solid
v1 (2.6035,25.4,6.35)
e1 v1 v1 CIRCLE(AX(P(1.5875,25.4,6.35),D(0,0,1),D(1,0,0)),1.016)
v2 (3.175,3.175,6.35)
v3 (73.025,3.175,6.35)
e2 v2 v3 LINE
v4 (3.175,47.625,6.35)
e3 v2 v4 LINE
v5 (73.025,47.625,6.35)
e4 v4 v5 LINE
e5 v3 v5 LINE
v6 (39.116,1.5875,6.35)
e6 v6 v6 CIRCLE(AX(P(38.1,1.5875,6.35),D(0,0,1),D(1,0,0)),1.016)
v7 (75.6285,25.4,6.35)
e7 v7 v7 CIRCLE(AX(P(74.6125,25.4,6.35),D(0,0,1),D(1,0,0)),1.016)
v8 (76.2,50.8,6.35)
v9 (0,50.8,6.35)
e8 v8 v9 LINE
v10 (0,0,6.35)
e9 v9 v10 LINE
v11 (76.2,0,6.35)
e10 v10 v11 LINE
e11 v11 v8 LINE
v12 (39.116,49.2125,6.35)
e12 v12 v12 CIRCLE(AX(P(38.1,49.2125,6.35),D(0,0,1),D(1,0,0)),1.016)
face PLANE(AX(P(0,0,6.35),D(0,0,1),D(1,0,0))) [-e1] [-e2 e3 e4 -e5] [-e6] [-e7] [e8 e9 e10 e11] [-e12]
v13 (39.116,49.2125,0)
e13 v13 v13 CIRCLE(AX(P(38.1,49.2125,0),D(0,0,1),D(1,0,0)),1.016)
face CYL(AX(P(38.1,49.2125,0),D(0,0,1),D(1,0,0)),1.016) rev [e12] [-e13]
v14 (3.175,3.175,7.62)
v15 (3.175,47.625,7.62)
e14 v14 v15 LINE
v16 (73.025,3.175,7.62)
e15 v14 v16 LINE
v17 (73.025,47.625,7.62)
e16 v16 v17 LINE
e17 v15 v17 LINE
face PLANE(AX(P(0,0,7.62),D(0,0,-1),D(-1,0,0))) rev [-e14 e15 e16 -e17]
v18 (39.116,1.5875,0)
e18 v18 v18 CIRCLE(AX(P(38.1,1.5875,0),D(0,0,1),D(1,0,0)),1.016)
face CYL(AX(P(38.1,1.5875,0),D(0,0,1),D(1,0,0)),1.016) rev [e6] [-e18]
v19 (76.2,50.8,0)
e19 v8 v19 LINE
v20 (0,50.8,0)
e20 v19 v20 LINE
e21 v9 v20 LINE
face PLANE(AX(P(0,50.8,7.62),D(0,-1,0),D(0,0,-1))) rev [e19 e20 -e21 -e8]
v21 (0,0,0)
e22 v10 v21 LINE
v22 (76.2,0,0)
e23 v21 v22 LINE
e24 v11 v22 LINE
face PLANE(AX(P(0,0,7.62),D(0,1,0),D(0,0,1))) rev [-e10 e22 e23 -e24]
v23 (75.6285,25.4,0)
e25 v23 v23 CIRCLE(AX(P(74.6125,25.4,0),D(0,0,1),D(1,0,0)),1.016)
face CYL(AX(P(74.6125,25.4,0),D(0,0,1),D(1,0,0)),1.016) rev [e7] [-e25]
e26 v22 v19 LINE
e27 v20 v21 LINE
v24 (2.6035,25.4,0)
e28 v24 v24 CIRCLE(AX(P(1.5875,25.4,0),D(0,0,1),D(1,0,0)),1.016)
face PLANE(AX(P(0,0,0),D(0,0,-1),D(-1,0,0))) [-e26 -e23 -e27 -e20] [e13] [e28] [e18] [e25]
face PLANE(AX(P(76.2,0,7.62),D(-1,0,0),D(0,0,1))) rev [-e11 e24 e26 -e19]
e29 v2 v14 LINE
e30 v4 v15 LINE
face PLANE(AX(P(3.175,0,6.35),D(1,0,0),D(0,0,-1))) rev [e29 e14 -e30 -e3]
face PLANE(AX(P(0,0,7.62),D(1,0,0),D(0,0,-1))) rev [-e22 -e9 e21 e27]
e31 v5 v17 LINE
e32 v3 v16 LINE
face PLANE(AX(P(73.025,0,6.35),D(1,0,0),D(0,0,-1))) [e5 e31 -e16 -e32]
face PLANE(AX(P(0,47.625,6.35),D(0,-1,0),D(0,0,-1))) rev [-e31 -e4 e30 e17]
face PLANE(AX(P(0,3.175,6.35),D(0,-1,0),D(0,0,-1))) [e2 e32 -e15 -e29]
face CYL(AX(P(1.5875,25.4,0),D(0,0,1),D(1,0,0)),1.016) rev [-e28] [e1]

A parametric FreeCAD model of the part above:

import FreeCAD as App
import Part
import Sketcher

V = App.Vector
Q = App.Units.Quantity


def add_polygon(sketch, points):
    """Adds a closed chain of lines whose ends are joined by coincident constraints."""
    first, n = sketch.GeometryCount, len(points)
    for a, b in zip(points, points[1:] + points[:1]):
        sketch.addGeometry(Part.LineSegment(App.Vector(*a, 0), App.Vector(*b, 0)), False)
    for i in range(n):
        sketch.addConstraint(Sketcher.Constraint("Coincident", first + i, 2, first + (i + 1) % n, 1))

doc = App.newDocument("Part")
body = doc.addObject("PartDesign::Body", "Body")

sketch1 = body.newObject("Sketcher::SketchObject", "Sketch")
sketch1.AttachmentSupport = (doc.getObject("XY_Plane"), [""])
sketch1.MapMode = "FlatFace"
add_polygon(sketch1, [(0, 51), (0, 0), (76, 0), (76, 51)])
sketch1.addConstraint(Sketcher.Constraint("Vertical", 0))
sketch1.addConstraint(Sketcher.Constraint("Horizontal", 1))
sketch1.addConstraint(Sketcher.Constraint("Vertical", 2))
sketch1.addConstraint(Sketcher.Constraint("Horizontal", 3))
sketch1.addConstraint(Sketcher.Constraint("Coincident", 0, 2, -1, 1))
sketch1.addConstraint(Sketcher.Constraint("DistanceX", 1, 1, 1, 2, Q("3 in")))
sketch1.addConstraint(Sketcher.Constraint("DistanceY", 0, 2, 0, 1, Q("2 in")))
pad1 = body.newObject("PartDesign::Pad", "Pad")
pad1.Profile = sketch1
pad1.Length = Q("0.3 in")

sketch2 = body.newObject("Sketcher::SketchObject", "Sketch001")
sketch2.AttachmentSupport = (doc.getObject("XY_Plane"), [""])
sketch2.MapMode = "FlatFace"
sketch2.AttachmentOffset = App.Placement(V(0, 0, 0.3 * 25.4), App.Rotation())
add_polygon(sketch2, [(0, 51), (0, 0), (76, 0), (76, 51)])
add_polygon(sketch2, [(3, 3), (3, 48), (73, 48), (73, 3)])
sketch2.addConstraint(Sketcher.Constraint("Vertical", 0))
sketch2.addConstraint(Sketcher.Constraint("Horizontal", 1))
sketch2.addConstraint(Sketcher.Constraint("Vertical", 2))
sketch2.addConstraint(Sketcher.Constraint("Horizontal", 3))
sketch2.addConstraint(Sketcher.Constraint("Vertical", 4))
sketch2.addConstraint(Sketcher.Constraint("Horizontal", 5))
sketch2.addConstraint(Sketcher.Constraint("Vertical", 6))
sketch2.addConstraint(Sketcher.Constraint("Horizontal", 7))
sketch2.addConstraint(Sketcher.Constraint("Coincident", 0, 2, -1, 1))
sketch2.addConstraint(Sketcher.Constraint("DistanceX", 1, 1, 1, 2, Q("3 in")))
sketch2.addConstraint(Sketcher.Constraint("DistanceY", 0, 2, 0, 1, Q("2 in")))
sketch2.addConstraint(Sketcher.Constraint("DistanceX", 5, 1, 5, 2, Q("2.75 in")))
sketch2.addConstraint(Sketcher.Constraint("DistanceY", 4, 1, 4, 2, Q("1.75 in")))
sketch2.addConstraint(Sketcher.Constraint("DistanceX", -1, 1, 4, 2, Q("0.125 in")))
sketch2.addConstraint(Sketcher.Constraint("DistanceY", -1, 1, 4, 2, Q("1.875 in")))
pocket1 = body.newObject("PartDesign::Pocket", "Pocket")
pocket1.Profile = sketch2
pocket1.Length = Q("0.05 in")

sketch3 = body.newObject("Sketcher::SketchObject", "Sketch002")
sketch3.AttachmentSupport = (doc.getObject("XY_Plane"), [""])
sketch3.MapMode = "FlatFace"
sketch3.AttachmentOffset = App.Placement(V(0, 0, 0.25 * 25.4), App.Rotation())
sketch3.addGeometry(Part.Circle(V(1.6, 25.4, 0), V(0, 0, 1), 1), False)
sketch3.addGeometry(Part.Circle(V(38.1, 49.2, 0), V(0, 0, 1), 1), False)
sketch3.addGeometry(Part.Circle(V(74.6, 25.4, 0), V(0, 0, 1), 1), False)
sketch3.addGeometry(Part.Circle(V(38.1, 1.6, 0), V(0, 0, 1), 1), False)
sketch3.addConstraint(Sketcher.Constraint("Equal", 0, 1))
sketch3.addConstraint(Sketcher.Constraint("Equal", 1, 2))
sketch3.addConstraint(Sketcher.Constraint("Equal", 2, 3))
sketch3.addConstraint(Sketcher.Constraint("Horizontal", 0, 3, 2, 3))
sketch3.addConstraint(Sketcher.Constraint("Vertical", 1, 3, 3, 3))
sketch3.addConstraint(Sketcher.Constraint("Diameter", 0, Q("0.08 in")))
sketch3.addConstraint(Sketcher.Constraint("DistanceY", -1, 1, 0, 3, Q("1 in")))
sketch3.addConstraint(Sketcher.Constraint("DistanceX", -1, 1, 1, 3, Q("1.5 in")))
sketch3.addConstraint(Sketcher.Constraint("DistanceX", -1, 1, 0, 3, Q("0.0625 in")))
sketch3.addConstraint(Sketcher.Constraint("DistanceY", -1, 1, 1, 3, Q("1.9375 in")))
sketch3.addConstraint(Sketcher.Constraint("DistanceX", -1, 1, 2, 3, Q("2.9375 in")))
sketch3.addConstraint(Sketcher.Constraint("DistanceY", -1, 1, 3, 3, Q("0.0625 in")))
pocket2 = body.newObject("PartDesign::Pocket", "Pocket001")
pocket2.Profile = sketch3
pocket2.Type = "ThroughAll"

doc.recompute()
